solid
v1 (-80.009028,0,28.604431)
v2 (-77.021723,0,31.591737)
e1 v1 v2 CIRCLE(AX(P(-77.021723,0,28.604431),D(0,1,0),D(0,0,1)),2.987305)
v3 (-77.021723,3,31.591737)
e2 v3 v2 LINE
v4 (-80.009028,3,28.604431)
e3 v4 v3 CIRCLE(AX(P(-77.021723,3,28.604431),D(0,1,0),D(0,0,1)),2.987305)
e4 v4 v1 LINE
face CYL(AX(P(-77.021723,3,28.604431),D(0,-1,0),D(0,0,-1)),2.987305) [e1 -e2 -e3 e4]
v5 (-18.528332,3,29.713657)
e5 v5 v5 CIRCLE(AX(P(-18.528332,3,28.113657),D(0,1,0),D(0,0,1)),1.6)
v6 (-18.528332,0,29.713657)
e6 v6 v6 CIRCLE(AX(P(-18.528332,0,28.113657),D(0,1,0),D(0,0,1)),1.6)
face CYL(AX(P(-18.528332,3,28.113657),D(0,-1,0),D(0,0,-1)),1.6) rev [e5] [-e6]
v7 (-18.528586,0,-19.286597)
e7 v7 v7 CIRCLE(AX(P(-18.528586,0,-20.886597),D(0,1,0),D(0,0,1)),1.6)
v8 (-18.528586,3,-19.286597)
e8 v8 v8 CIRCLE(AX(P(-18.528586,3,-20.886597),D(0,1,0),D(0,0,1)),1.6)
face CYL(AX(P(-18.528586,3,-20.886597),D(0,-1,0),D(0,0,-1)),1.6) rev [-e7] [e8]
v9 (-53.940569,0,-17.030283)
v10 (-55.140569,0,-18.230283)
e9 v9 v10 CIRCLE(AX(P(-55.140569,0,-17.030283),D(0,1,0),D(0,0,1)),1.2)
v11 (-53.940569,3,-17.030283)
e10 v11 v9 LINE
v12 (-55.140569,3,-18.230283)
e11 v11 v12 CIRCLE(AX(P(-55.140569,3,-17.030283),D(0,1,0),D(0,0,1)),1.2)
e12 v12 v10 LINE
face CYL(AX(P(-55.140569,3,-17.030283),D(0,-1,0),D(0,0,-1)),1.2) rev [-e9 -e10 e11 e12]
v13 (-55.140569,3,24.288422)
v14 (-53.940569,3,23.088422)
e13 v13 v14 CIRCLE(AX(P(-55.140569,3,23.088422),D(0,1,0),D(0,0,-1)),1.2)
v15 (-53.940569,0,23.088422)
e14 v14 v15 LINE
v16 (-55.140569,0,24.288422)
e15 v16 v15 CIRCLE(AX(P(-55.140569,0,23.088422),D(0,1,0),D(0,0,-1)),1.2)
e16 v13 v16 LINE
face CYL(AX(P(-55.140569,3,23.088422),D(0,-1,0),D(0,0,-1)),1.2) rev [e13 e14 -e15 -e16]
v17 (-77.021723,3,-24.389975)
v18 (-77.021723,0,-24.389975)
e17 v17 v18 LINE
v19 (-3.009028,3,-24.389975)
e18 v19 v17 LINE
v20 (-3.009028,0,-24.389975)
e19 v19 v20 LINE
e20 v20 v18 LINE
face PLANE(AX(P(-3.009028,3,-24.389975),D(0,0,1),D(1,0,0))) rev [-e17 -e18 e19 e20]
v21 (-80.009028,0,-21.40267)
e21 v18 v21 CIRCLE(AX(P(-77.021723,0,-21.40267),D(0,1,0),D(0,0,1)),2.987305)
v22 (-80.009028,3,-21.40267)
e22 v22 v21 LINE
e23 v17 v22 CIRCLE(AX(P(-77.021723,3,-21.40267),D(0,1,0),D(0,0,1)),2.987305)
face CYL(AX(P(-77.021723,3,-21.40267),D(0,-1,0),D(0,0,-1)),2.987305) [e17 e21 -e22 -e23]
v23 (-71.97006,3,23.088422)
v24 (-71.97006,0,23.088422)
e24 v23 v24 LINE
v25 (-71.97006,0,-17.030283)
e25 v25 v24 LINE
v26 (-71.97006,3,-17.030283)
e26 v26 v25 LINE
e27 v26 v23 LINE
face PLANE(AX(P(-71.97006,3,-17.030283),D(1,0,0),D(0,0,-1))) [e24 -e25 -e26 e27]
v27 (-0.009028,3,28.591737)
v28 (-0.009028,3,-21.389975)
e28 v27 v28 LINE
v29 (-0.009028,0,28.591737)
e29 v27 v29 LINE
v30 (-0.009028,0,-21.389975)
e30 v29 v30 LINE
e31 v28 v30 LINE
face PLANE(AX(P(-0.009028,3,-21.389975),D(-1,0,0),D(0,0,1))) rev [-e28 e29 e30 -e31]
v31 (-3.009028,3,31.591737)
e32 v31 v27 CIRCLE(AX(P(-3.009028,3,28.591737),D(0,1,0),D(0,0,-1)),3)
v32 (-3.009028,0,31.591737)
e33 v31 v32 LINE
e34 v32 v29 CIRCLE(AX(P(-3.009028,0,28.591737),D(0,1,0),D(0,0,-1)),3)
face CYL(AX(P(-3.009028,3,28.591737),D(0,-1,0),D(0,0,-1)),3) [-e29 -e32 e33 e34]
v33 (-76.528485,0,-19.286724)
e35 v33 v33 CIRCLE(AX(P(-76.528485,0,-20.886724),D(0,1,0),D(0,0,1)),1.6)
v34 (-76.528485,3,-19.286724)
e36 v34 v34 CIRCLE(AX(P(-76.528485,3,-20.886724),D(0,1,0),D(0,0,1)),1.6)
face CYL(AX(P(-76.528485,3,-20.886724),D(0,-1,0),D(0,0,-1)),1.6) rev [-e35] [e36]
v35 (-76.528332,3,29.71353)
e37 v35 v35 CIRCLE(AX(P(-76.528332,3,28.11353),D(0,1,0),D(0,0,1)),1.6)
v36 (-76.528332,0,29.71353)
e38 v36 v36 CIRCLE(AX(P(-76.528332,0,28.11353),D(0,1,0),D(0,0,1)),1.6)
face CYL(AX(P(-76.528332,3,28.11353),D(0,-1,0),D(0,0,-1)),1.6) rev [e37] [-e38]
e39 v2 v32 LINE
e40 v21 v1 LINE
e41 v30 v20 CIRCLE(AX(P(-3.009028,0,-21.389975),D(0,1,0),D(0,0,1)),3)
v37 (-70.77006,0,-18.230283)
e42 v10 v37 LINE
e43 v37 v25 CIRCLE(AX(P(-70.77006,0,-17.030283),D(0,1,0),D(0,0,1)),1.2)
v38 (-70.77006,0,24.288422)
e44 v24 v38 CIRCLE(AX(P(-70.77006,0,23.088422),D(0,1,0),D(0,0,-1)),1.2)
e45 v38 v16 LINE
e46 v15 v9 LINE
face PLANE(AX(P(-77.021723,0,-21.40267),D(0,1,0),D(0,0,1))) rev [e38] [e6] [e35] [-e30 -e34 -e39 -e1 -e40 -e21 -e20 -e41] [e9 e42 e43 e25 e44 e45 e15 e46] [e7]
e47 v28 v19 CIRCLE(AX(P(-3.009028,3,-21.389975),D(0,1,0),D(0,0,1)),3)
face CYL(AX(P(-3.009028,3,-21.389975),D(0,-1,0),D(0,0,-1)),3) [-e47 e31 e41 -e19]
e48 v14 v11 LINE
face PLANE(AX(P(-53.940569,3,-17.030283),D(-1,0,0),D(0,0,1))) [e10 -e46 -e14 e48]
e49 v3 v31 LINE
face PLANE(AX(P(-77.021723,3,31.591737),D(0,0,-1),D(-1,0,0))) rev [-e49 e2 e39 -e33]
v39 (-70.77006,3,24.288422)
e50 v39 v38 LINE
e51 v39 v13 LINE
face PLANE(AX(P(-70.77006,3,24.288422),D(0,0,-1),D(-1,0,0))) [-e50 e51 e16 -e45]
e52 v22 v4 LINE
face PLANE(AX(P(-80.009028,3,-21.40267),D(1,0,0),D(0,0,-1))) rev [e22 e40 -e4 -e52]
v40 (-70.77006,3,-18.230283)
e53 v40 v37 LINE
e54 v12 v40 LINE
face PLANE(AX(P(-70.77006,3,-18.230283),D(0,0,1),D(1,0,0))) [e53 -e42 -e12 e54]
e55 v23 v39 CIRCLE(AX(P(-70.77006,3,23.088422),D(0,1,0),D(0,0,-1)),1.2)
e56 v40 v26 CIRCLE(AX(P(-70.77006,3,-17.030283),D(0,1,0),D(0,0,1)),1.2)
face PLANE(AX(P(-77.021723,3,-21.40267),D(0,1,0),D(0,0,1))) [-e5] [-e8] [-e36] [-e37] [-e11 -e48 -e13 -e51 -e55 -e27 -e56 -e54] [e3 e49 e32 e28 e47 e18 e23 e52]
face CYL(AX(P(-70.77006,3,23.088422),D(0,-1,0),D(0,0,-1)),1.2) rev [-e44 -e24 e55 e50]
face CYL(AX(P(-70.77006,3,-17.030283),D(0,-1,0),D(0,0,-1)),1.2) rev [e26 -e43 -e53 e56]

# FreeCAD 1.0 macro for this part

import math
import FreeCAD as App
import Part
import Sketcher
from FreeCAD import Vector

doc = App.newDocument("Part")
body = doc.addObject("PartDesign::Body", "Body")

# Sketch on XZ plane
sketch1 = body.newObject("Sketcher::SketchObject", "Sketch")
sketch1.AttachmentSupport = (doc.getObject("XZ_Plane"), [""])
sketch1.MapMode = "FlatFace"
sketch1.addGeometry([
    Part.LineSegment(Vector(-0.009028, 28.591737, 0), Vector(-0.009028, -21.389975, 0)),  # 0
    Part.ArcOfCircle(Part.Circle(Vector(-3.009028, -21.389975, 0), Vector(0, 0, 1), 3), math.radians(-90), math.radians(0)),  # 1
    Part.LineSegment(Vector(-3.009028, -24.389975, 0), Vector(-77.021723, -24.389975, 0)),  # 2
    Part.ArcOfCircle(Part.Circle(Vector(-77.021723, -21.40267, 0), Vector(0, 0, 1), 2.987305), math.radians(180), math.radians(270)),  # 3
    Part.LineSegment(Vector(-80.009028, -21.40267, 0), Vector(-80.009028, 28.604431, 0)),  # 4
    Part.ArcOfCircle(Part.Circle(Vector(-77.021723, 28.604431, 0), Vector(0, 0, 1), 2.987305), math.radians(90), math.radians(180)),  # 5
    Part.LineSegment(Vector(-77.021723, 31.591737, 0), Vector(-3.009028, 31.591737, 0)),  # 6
    Part.ArcOfCircle(Part.Circle(Vector(-3.009028, 28.591737, 0), Vector(0, 0, 1), 3), math.radians(0), math.radians(90)),  # 7
    Part.Circle(Vector(-18.528332, 28.113657, 0), Vector(0, 0, 1), 1.6),  # 8
    Part.Circle(Vector(-76.528332, 28.11353, 0), Vector(0, 0, 1), 1.6),  # 9
    Part.Circle(Vector(-18.528586, -20.886597, 0), Vector(0, 0, 1), 1.6),  # 10
    Part.LineSegment(Vector(-70.77006, -18.230283, 0), Vector(-55.140569, -18.230283, 0)),  # 11
    Part.ArcOfCircle(Part.Circle(Vector(-55.140569, -17.030283, 0), Vector(0, 0, 1), 1.2), math.radians(-90), math.radians(0)),  # 12
    Part.LineSegment(Vector(-53.940569, -17.030283, 0), Vector(-53.940569, 23.088422, 0)),  # 13
    Part.ArcOfCircle(Part.Circle(Vector(-55.140569, 23.088422, 0), Vector(0, 0, 1), 1.2), math.radians(0), math.radians(90)),  # 14
    Part.LineSegment(Vector(-55.140569, 24.288422, 0), Vector(-70.77006, 24.288422, 0)),  # 15
    Part.ArcOfCircle(Part.Circle(Vector(-70.77006, 23.088422, 0), Vector(0, 0, 1), 1.2), math.radians(90), math.radians(180)),  # 16
    Part.LineSegment(Vector(-71.97006, 23.088422, 0), Vector(-71.97006, -17.030283, 0)),  # 17
    Part.ArcOfCircle(Part.Circle(Vector(-70.77006, -17.030283, 0), Vector(0, 0, 1), 1.2), math.radians(-180), math.radians(-90)),  # 18
    Part.Circle(Vector(-76.528485, -20.886724, 0), Vector(0, 0, 1), 1.6),  # 19
], False)
sketch1.addConstraint([
    Sketcher.Constraint("Tangent", 0, 2, 1, 2),
    Sketcher.Constraint("Tangent", 1, 1, 2, 1),
    Sketcher.Constraint("Tangent", 2, 2, 3, 2),
    Sketcher.Constraint("Tangent", 3, 1, 4, 1),
    Sketcher.Constraint("Tangent", 4, 2, 5, 2),
    Sketcher.Constraint("Tangent", 5, 1, 6, 1),
    Sketcher.Constraint("Tangent", 6, 2, 7, 2),
    Sketcher.Constraint("Tangent", 7, 1, 0, 1),
    Sketcher.Constraint("Tangent", 11, 2, 12, 1),
    Sketcher.Constraint("Tangent", 12, 2, 13, 1),
    Sketcher.Constraint("Tangent", 13, 2, 14, 1),
    Sketcher.Constraint("Tangent", 14, 2, 15, 1),
    Sketcher.Constraint("Tangent", 15, 2, 16, 1),
    Sketcher.Constraint("Tangent", 16, 2, 17, 1),
    Sketcher.Constraint("Tangent", 17, 2, 18, 1),
    Sketcher.Constraint("Tangent", 18, 2, 11, 1),
    Sketcher.Constraint("Vertical", 0),
    Sketcher.Constraint("Horizontal", 2),
    Sketcher.Constraint("Vertical", 4),
    Sketcher.Constraint("Horizontal", 6),
    Sketcher.Constraint("Horizontal", 11),
    Sketcher.Constraint("Vertical", 13),
    Sketcher.Constraint("Horizontal", 15),
    Sketcher.Constraint("Vertical", 17),
    Sketcher.Constraint("Equal", 3, 5),
    Sketcher.Constraint("Equal", 1, 7),
    Sketcher.Constraint("Equal", 8, 9),
    Sketcher.Constraint("Equal", 9, 10),
    Sketcher.Constraint("Equal", 12, 14),
    Sketcher.Constraint("Equal", 14, 16),
    Sketcher.Constraint("Equal", 16, 18),
    Sketcher.Constraint("Equal", 10, 19),
    Sketcher.Constraint("Radius", 1, 3.0),
    Sketcher.Constraint("Diameter", 8, 3.2),
    Sketcher.Constraint("Radius", 12, 1.2),
    Sketcher.Constraint("DistanceX", 9, 3, 8, 3, 58.0),
    Sketcher.Constraint("DistanceY", 4, 1, 4, 2, 50.007102),
    Sketcher.Constraint("Radius", 3, 2.987305),
    Sketcher.Constraint("DistanceX", 11, 1, 11, 2, 15.629491),
    Sketcher.Constraint("DistanceY", 9, 3, 5, 3, 0.490902),
    Sketcher.Constraint("DistanceX", 2, 2, 2, 1, 74.012695),
    Sketcher.Constraint("DistanceY", 13, 1, 13, 2, 40.118705),
    Sketcher.Constraint("DistanceX", 1, 3, -1, 1, 3.009028),
    Sketcher.Constraint("DistanceY", 3, 3, -1, 1, 21.40267),
    Sketcher.Constraint("DistanceX", 12, 3, -1, 1, 55.140569),
    Sketcher.Constraint("DistanceY", 8, 3, 7, 3, 0.47808),
    Sketcher.Constraint("DistanceX", 5, 3, 8, 3, 58.493391),
    Sketcher.Constraint("DistanceX", 10, 3, 1, 3, 15.519558),
    Sketcher.Constraint("DistanceY", 1, 3, 10, 3, 0.503378),
    Sketcher.Constraint("DistanceY", 14, 3, 5, 3, 5.516009),
    Sketcher.Constraint("DistanceX", 3, 3, 19, 3, 0.493239),
    Sketcher.Constraint("DistanceY", 19, 3, 18, 3, 3.856441),
])
pad1 = body.newObject("PartDesign::Pad", "Pad")
pad1.Profile = sketch1
pad1.Length = 3
pad1.Reversed = True

doc.recompute()
